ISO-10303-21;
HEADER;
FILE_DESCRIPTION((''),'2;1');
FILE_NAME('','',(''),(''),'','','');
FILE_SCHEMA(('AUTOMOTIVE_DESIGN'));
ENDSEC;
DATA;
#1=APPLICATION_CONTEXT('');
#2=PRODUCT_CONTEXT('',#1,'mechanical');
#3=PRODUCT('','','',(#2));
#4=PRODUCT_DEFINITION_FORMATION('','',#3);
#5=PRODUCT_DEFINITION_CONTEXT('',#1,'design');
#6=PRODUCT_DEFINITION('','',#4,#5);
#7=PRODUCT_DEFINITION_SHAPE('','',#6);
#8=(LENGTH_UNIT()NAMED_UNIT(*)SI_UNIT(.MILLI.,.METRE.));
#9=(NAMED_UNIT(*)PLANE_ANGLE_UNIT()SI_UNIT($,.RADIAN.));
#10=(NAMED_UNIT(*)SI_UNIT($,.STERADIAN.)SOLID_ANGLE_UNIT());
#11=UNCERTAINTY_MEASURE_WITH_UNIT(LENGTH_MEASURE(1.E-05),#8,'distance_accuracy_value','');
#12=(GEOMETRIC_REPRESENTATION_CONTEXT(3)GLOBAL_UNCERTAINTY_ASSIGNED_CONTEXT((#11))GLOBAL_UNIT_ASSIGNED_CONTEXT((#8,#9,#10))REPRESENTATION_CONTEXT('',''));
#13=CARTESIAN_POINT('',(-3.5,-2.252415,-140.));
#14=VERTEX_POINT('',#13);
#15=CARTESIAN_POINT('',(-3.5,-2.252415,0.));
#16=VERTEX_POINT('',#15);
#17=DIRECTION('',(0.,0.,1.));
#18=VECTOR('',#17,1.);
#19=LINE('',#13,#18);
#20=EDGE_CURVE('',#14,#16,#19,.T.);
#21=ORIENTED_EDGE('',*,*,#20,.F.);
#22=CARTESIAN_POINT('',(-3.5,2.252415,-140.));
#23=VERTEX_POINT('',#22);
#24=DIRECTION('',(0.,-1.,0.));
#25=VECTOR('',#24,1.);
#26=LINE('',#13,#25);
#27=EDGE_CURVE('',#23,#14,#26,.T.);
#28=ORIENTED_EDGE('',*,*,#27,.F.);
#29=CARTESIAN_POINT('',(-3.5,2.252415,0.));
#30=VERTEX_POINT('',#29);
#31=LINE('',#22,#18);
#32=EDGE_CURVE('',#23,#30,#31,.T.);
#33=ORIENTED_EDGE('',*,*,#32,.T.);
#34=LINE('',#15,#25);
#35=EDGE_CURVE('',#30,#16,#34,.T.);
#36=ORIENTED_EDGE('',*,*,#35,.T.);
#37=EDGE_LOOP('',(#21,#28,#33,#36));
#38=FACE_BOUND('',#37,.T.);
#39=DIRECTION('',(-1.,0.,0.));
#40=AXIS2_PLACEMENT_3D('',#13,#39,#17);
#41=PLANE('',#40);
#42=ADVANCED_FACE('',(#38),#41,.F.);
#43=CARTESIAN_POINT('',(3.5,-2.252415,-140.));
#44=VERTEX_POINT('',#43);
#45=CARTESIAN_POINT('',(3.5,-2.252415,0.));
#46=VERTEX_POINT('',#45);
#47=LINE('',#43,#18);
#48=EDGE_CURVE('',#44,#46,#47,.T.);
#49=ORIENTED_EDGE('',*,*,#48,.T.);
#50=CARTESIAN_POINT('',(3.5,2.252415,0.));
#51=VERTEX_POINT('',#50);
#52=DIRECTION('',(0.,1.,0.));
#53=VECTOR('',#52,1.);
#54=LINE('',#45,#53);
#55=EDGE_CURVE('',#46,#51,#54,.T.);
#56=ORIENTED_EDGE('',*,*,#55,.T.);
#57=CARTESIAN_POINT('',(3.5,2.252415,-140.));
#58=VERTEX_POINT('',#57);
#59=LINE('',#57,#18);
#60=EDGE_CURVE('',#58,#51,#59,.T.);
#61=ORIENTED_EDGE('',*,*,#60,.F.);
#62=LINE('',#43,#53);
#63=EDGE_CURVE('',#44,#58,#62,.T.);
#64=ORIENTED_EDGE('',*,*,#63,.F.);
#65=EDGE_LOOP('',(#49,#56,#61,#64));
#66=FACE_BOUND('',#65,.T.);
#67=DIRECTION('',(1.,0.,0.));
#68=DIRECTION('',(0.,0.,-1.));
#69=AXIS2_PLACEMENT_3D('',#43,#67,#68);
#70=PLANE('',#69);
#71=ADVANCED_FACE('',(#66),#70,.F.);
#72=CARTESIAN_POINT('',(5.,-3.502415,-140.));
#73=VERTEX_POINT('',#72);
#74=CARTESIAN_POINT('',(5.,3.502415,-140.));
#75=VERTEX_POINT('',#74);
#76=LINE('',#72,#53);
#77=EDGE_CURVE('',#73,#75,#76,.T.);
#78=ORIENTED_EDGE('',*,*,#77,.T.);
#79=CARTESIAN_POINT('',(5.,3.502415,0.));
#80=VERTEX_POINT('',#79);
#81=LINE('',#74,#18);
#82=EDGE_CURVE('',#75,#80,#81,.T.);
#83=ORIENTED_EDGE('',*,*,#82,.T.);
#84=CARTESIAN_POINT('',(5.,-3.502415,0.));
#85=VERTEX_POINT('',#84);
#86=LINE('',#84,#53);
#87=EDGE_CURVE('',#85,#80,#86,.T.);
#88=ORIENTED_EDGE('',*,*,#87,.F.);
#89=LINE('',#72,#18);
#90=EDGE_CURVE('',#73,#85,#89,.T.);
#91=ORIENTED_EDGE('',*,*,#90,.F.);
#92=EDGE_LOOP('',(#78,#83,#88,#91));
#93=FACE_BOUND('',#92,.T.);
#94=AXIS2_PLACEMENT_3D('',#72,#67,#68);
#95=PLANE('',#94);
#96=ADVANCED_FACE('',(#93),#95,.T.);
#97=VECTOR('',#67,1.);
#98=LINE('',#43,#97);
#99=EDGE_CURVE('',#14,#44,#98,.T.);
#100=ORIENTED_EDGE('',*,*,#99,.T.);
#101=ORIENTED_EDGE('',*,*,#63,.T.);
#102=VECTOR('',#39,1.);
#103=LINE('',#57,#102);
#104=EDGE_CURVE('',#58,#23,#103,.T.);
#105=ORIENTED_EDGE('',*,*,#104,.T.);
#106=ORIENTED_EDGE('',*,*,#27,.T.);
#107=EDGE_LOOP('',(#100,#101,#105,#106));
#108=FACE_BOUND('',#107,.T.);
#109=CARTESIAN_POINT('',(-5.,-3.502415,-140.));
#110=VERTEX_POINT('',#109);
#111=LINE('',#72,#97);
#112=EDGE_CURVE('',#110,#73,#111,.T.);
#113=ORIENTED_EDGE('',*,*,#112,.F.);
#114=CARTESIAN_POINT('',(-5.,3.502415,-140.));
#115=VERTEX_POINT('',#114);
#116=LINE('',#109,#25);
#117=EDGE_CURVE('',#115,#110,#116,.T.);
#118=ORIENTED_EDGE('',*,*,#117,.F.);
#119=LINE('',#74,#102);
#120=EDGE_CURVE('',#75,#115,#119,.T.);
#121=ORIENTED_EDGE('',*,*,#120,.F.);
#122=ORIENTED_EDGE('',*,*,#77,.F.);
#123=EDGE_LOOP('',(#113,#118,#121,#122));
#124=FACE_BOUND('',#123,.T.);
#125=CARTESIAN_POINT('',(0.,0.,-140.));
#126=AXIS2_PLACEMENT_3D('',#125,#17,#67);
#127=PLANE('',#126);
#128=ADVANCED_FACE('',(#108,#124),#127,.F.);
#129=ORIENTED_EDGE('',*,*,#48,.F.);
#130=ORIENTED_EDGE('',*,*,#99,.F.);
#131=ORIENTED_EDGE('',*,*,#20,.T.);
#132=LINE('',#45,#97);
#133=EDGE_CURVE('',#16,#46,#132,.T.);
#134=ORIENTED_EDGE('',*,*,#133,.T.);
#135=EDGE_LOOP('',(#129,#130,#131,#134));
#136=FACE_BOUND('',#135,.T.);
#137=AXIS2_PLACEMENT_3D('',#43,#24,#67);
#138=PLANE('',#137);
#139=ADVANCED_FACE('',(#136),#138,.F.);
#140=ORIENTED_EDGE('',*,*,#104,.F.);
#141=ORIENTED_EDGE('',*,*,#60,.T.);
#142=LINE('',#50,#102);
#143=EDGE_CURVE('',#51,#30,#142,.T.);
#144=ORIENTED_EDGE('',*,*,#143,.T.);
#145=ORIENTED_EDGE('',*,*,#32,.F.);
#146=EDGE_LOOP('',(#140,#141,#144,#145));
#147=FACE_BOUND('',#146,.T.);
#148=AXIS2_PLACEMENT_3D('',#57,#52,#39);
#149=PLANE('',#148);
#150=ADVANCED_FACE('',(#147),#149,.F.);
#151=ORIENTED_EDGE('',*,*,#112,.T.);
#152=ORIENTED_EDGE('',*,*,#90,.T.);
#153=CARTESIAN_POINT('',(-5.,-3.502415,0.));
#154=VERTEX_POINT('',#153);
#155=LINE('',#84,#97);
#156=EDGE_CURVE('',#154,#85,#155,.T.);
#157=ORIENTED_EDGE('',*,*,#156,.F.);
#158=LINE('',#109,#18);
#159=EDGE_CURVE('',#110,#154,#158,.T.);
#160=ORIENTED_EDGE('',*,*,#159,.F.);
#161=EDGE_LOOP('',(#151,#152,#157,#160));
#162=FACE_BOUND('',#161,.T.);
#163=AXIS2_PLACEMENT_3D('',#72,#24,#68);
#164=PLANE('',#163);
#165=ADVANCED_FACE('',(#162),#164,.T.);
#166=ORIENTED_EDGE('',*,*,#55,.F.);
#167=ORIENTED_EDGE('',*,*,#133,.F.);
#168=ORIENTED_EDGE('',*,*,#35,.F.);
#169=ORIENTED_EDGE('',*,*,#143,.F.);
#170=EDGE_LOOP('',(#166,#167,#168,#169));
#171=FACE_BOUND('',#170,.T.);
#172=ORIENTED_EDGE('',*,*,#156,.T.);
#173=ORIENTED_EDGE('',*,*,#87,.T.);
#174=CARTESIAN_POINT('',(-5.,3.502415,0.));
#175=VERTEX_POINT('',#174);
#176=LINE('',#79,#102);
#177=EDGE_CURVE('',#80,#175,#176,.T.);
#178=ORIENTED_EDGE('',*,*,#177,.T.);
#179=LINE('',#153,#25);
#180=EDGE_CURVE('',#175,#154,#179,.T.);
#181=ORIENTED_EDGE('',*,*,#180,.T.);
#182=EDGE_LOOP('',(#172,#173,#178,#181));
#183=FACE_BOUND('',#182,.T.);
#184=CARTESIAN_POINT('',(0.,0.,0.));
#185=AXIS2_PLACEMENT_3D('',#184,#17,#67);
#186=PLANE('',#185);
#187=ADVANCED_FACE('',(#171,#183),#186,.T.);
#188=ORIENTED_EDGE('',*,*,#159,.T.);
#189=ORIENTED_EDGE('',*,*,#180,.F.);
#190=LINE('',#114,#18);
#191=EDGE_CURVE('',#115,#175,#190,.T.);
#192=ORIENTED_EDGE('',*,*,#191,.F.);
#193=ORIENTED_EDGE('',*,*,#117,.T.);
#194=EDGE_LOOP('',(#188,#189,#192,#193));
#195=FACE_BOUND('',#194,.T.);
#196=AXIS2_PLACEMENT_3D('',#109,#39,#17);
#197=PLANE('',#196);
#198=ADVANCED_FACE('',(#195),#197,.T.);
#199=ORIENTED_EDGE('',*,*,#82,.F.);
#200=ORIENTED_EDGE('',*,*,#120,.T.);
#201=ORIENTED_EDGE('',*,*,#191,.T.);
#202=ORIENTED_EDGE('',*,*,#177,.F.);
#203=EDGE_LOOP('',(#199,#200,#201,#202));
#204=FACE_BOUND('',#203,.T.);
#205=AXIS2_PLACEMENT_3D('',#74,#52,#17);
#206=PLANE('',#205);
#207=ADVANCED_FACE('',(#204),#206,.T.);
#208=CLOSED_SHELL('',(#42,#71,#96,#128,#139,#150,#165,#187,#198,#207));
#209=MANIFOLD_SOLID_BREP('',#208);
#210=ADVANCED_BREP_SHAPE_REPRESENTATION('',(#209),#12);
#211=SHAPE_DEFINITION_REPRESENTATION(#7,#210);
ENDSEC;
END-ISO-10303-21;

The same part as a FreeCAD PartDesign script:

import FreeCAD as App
import Part
import Sketcher


def add_polygon(sketch, points):
    """Adds a closed chain of lines whose ends are joined by coincident constraints."""
    first, n = sketch.GeometryCount, len(points)
    for a, b in zip(points, points[1:] + points[:1]):
        sketch.addGeometry(Part.LineSegment(App.Vector(*a, 0), App.Vector(*b, 0)), False)
    for i in range(n):
        sketch.addConstraint(Sketcher.Constraint("Coincident", first + i, 2, first + (i + 1) % n, 1))

doc = App.newDocument("Part")
body = doc.addObject("PartDesign::Body", "Body")

# Sketch on XY plane
sketch1 = doc.addObject("Sketcher::SketchObject", "Sketch")
body.addObject(sketch1)
sketch1.AttachmentSupport = (doc.XY_Plane, [""])
sketch1.MapMode = "FlatFace"
add_polygon(sketch1, [(-5, 3.5), (-5, -3.5), (5, -3.5), (5, 3.5)])  # lines 0-3
add_polygon(sketch1, [(3.5, -2.3), (-3.5, -2.3), (-3.5, 2.3), (3.5, 2.3)])  # lines 4-7
sketch1.addConstraint(Sketcher.Constraint("Vertical", 0))
sketch1.addConstraint(Sketcher.Constraint("Horizontal", 1))
sketch1.addConstraint(Sketcher.Constraint("Vertical", 2))
sketch1.addConstraint(Sketcher.Constraint("Horizontal", 3))
sketch1.addConstraint(Sketcher.Constraint("Horizontal", 4))
sketch1.addConstraint(Sketcher.Constraint("Vertical", 5))
sketch1.addConstraint(Sketcher.Constraint("Horizontal", 6))
sketch1.addConstraint(Sketcher.Constraint("Vertical", 7))
sketch1.addConstraint(Sketcher.Constraint("Symmetric", 0, 2, 2, 2, -1, 1))
sketch1.addConstraint(Sketcher.Constraint("Symmetric", 4, 2, 6, 2, -1, 1))
sketch1.addConstraint(Sketcher.Constraint("DistanceX", 1, 1, 1, 2, 10.0))
sketch1.addConstraint(Sketcher.Constraint("DistanceX", 4, 2, 4, 1, 7.0))
sketch1.addConstraint(Sketcher.Constraint("DistanceY", 0, 2, 4, 2, 1.25))
sketch1.addConstraint(Sketcher.Constraint("DistanceY", 0, 2, 0, 1, 7.004831))
pad1 = doc.addObject("PartDesign::Pad", "Pad")
body.addObject(pad1)
pad1.Profile = sketch1
pad1.Length = 140
pad1.Reversed = True

doc.recompute()
